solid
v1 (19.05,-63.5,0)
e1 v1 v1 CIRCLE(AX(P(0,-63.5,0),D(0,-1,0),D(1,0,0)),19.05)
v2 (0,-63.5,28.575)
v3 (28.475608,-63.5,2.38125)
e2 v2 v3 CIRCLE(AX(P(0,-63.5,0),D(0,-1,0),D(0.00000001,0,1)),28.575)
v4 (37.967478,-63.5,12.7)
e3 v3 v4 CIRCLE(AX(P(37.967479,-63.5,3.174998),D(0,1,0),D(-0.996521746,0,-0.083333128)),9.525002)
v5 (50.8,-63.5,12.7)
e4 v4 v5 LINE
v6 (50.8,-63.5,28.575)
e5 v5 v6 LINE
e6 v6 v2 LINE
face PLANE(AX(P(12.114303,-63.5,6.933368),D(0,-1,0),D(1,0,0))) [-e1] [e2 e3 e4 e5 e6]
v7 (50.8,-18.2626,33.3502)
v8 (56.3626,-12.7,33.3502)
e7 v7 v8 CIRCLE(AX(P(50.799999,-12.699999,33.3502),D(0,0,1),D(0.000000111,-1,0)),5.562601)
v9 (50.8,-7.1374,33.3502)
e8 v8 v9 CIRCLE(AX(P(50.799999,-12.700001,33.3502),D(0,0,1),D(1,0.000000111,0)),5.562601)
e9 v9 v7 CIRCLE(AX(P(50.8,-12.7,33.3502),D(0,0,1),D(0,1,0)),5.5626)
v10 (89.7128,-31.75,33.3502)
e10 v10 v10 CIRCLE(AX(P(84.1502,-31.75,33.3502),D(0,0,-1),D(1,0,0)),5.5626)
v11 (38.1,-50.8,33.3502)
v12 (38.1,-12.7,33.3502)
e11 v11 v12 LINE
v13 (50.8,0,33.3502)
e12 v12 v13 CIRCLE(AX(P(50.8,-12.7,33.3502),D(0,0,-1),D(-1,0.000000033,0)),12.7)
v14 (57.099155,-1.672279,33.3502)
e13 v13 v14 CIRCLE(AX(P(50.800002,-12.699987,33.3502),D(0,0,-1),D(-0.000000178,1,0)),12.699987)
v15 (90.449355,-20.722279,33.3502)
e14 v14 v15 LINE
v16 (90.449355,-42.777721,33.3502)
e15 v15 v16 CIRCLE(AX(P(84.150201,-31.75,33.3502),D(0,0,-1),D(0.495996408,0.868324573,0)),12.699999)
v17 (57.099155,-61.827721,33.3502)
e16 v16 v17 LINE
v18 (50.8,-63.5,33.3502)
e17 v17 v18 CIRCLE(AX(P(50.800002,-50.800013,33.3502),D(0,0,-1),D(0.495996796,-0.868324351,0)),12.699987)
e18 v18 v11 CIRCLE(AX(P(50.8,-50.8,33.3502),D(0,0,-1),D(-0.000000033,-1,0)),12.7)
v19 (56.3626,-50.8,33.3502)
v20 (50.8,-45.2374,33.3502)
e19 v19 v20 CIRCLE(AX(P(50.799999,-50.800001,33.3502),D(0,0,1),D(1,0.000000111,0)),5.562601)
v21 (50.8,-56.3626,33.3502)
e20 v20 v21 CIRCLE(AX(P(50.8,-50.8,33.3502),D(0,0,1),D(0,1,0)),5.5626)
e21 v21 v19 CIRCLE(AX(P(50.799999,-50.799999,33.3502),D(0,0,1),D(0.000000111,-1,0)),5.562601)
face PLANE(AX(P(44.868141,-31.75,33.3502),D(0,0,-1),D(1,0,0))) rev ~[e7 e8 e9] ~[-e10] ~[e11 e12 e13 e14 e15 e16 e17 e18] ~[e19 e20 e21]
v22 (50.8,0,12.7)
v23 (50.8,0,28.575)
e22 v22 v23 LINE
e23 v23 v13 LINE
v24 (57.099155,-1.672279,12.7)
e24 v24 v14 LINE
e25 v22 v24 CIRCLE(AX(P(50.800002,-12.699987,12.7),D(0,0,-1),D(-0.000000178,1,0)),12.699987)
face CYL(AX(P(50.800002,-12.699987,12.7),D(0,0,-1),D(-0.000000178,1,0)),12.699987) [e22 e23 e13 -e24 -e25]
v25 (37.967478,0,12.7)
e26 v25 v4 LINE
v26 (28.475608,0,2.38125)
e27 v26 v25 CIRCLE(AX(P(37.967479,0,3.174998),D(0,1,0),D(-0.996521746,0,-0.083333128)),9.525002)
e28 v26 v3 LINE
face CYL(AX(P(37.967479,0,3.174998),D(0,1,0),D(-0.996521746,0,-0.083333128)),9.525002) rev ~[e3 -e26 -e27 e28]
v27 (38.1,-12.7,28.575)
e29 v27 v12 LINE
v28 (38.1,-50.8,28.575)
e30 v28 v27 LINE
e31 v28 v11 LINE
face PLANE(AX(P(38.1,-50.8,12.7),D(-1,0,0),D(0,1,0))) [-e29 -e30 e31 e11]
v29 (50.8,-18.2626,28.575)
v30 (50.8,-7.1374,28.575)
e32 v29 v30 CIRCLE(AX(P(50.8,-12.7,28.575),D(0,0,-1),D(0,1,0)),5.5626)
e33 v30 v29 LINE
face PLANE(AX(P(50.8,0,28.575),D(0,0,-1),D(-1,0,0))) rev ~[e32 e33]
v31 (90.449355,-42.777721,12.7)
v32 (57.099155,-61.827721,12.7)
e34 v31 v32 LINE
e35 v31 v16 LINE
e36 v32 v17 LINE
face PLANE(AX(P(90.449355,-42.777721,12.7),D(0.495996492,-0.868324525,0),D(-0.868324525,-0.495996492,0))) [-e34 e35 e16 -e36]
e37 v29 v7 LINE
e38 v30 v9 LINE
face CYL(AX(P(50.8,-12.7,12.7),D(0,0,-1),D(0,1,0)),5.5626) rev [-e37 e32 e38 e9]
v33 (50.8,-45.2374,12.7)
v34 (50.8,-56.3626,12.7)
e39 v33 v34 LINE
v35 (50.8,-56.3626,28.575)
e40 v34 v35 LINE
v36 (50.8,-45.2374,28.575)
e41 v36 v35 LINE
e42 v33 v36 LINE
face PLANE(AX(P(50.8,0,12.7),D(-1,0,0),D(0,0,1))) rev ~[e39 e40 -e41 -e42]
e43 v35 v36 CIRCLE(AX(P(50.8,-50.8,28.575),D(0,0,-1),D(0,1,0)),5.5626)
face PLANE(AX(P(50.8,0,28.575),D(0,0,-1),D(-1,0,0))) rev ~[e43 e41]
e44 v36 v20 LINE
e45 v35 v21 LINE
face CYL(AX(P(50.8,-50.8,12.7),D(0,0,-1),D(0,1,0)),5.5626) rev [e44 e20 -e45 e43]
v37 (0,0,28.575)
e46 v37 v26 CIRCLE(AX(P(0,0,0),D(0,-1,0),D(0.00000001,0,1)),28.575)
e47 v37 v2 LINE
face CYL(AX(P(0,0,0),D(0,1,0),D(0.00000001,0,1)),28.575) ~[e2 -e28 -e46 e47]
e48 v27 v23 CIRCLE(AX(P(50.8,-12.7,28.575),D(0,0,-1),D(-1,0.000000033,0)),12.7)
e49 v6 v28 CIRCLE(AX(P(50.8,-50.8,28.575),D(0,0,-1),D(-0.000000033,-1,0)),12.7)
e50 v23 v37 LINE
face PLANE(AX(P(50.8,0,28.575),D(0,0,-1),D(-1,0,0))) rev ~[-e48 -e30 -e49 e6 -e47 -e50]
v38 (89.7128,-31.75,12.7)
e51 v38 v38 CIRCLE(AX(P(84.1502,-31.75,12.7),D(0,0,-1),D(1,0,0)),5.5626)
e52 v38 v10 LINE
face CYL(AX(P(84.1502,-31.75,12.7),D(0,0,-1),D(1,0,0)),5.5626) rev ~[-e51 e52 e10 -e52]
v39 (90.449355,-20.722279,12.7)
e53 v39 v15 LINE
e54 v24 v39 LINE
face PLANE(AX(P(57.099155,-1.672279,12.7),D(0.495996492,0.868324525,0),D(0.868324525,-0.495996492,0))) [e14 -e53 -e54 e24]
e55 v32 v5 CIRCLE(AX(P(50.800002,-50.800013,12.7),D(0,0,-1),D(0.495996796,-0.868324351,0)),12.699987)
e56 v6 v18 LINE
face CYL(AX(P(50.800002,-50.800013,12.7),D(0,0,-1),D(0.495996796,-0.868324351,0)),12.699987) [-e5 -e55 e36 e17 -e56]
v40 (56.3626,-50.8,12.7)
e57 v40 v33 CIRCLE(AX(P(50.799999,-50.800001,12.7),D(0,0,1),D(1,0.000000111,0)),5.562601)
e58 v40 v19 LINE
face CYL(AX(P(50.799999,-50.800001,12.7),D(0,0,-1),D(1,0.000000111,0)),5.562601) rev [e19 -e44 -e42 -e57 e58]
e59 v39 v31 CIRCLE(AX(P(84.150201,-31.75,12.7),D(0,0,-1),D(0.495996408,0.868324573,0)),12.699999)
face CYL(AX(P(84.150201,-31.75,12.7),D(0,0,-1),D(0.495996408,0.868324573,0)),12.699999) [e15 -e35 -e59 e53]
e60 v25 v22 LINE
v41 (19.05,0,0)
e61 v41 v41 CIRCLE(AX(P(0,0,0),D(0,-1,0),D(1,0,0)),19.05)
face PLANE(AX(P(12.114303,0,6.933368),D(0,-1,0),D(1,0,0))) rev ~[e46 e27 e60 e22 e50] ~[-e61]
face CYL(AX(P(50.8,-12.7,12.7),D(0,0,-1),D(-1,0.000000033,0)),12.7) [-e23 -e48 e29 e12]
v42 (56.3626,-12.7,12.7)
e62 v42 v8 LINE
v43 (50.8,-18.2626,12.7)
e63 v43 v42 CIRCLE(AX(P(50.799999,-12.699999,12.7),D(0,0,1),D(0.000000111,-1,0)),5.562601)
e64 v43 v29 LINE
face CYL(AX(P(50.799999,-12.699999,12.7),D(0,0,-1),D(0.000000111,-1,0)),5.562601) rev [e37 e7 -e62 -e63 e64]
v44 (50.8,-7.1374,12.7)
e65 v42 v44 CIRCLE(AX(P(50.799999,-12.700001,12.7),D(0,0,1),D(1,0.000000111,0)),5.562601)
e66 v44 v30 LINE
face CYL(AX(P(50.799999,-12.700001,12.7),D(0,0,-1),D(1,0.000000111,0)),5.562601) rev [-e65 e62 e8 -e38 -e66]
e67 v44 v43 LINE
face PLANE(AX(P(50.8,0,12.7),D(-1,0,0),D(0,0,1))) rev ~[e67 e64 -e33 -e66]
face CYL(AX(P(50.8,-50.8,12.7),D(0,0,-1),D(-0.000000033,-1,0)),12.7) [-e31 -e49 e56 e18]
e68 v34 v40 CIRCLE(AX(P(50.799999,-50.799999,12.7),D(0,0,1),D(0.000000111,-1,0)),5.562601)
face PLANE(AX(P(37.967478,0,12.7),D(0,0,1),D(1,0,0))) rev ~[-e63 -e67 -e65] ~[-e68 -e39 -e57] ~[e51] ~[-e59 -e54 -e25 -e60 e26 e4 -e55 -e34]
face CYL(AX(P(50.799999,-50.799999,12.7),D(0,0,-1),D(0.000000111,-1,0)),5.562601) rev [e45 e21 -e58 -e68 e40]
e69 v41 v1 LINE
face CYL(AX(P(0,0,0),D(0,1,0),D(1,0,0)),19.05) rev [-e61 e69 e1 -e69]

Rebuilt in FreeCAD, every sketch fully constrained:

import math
import FreeCAD as App
import Part
import Sketcher

V = App.Vector
Q = App.Units.Quantity

doc = App.newDocument("Part")
body = doc.addObject("PartDesign::Body", "Body")

# Sketch on XZ plane
sketch1 = body.newObject("Sketcher::SketchObject", "Sketch")
sketch1.AttachmentSupport = (doc.getObject("XZ_Plane"), [""])
sketch1.MapMode = "FlatFace"
sketch1.addGeometry(Part.LineSegment(V(51, 29, 0), V(0, 29, 0)), False)
sketch1.addGeometry(Part.ArcOfCircle(Part.Circle(V(0, 0, 0), V(0, 0, 1), 29), math.radians(90), math.radians(365)), False)
sketch1.addGeometry(Part.ArcOfCircle(Part.Circle(V(38, 3, 0), V(0, 0, 1), 10), math.radians(90), math.radians(185)), False)
sketch1.addGeometry(Part.LineSegment(V(38, 13, 0), V(51, 13, 0)), False)
sketch1.addGeometry(Part.LineSegment(V(51, 13, 0), V(51, 29, 0)), False)
sketch1.addGeometry(Part.Circle(V(0, 0, 0), V(0, 0, 1), 19), False)
sketch1.addConstraint(Sketcher.Constraint("Tangent", 0, 2, 1, 1))
sketch1.addConstraint(Sketcher.Constraint("Tangent", 1, 2, 2, 2))
sketch1.addConstraint(Sketcher.Constraint("Tangent", 2, 1, 3, 1))
sketch1.addConstraint(Sketcher.Constraint("Coincident", 3, 2, 4, 1))
sketch1.addConstraint(Sketcher.Constraint("Coincident", 4, 2, 0, 1))
sketch1.addConstraint(Sketcher.Constraint("Horizontal", 0))
sketch1.addConstraint(Sketcher.Constraint("Horizontal", 3))
sketch1.addConstraint(Sketcher.Constraint("Vertical", 4))
sketch1.addConstraint(Sketcher.Constraint("Coincident", 1, 3, -1, 1))
sketch1.addConstraint(Sketcher.Constraint("Coincident", 5, 3, -1, 1))
sketch1.addConstraint(Sketcher.Constraint("Diameter", 5, Q("1.5 in")))
sketch1.addConstraint(Sketcher.Constraint("DistanceX", 0, 2, 0, 1, Q("2 in")))
sketch1.addConstraint(Sketcher.Constraint("Radius", 1, Q("1.125 in")))
sketch1.addConstraint(Sketcher.Constraint("Radius", 2, Q("0.3750001 in")))
sketch1.addConstraint(Sketcher.Constraint("DistanceY", 2, 3, 0, 2, Q("1.0000001 in")))
pad1 = body.newObject("PartDesign::Pad", "Pad")
pad1.Profile = sketch1
pad1.Length = Q("2.5 in")

# Sketch on XY plane
sketch2 = body.newObject("Sketcher::SketchObject", "Sketch001")
sketch2.AttachmentSupport = (doc.getObject("XY_Plane"), [""])
sketch2.MapMode = "FlatFace"
sketch2.AttachmentOffset = App.Placement(V(0, 0, 0.5 * 25.4), App.Rotation())
sketch2.addGeometry(Part.ArcOfCircle(Part.Circle(V(51, -51, 0), V(0, 0, 1), 13), math.radians(-180), math.radians(-90)), False)
sketch2.addGeometry(Part.LineSegment(V(38, -51, 0), V(38, -13, 0)), False)
sketch2.addGeometry(Part.ArcOfCircle(Part.Circle(V(51, -13, 0), V(0, 0, 1), 13), math.radians(90), math.radians(180)), False)
sketch2.addGeometry(Part.ArcOfCircle(Part.Circle(V(51, -13, 0), V(0, 0, 1), 13), math.radians(60), math.radians(90)), False)
sketch2.addGeometry(Part.LineSegment(V(57, -2, 0), V(90, -21, 0)), False)
sketch2.addGeometry(Part.ArcOfCircle(Part.Circle(V(84, -32, 0), V(0, 0, 1), 13), math.radians(-60), math.radians(60)), False)
sketch2.addGeometry(Part.LineSegment(V(90, -43, 0), V(57, -62, 0)), False)
sketch2.addGeometry(Part.ArcOfCircle(Part.Circle(V(51, -51, 0), V(0, 0, 1), 13), math.radians(-90), math.radians(-60)), False)
sketch2.addGeometry(Part.ArcOfCircle(Part.Circle(V(51, -13, 0), V(0, 0, 1), 6), math.radians(90), math.radians(270)), False)
sketch2.addGeometry(Part.ArcOfCircle(Part.Circle(V(51, -13, 0), V(0, 0, 1), 6), math.radians(-90), math.radians(0)), False)
sketch2.addGeometry(Part.ArcOfCircle(Part.Circle(V(51, -13, 0), V(0, 0, 1), 6), math.radians(0), math.radians(90)), False)
sketch2.addGeometry(Part.ArcOfCircle(Part.Circle(V(51, -51, 0), V(0, 0, 1), 6), math.radians(90), math.radians(270)), False)
sketch2.addGeometry(Part.ArcOfCircle(Part.Circle(V(51, -51, 0), V(0, 0, 1), 6), math.radians(-90), math.radians(0)), False)
sketch2.addGeometry(Part.ArcOfCircle(Part.Circle(V(51, -51, 0), V(0, 0, 1), 6), math.radians(0), math.radians(90)), False)
sketch2.addGeometry(Part.Circle(V(84, -32, 0), V(0, 0, 1), 6), False)
sketch2.addConstraint(Sketcher.Constraint("Tangent", 0, 1, 1, 1))
sketch2.addConstraint(Sketcher.Constraint("Tangent", 1, 2, 2, 2))
sketch2.addConstraint(Sketcher.Constraint("Tangent", 2, 1, 3, 2))
sketch2.addConstraint(Sketcher.Constraint("Tangent", 3, 1, 4, 1))
sketch2.addConstraint(Sketcher.Constraint("Tangent", 4, 2, 5, 2))
sketch2.addConstraint(Sketcher.Constraint("Tangent", 5, 1, 6, 1))
sketch2.addConstraint(Sketcher.Constraint("Tangent", 6, 2, 7, 2))
sketch2.addConstraint(Sketcher.Constraint("Tangent", 7, 1, 0, 2))
sketch2.addConstraint(Sketcher.Constraint("Tangent", 8, 2, 9, 1))
sketch2.addConstraint(Sketcher.Constraint("Tangent", 9, 2, 10, 1))
sketch2.addConstraint(Sketcher.Constraint("Tangent", 10, 2, 8, 1))
sketch2.addConstraint(Sketcher.Constraint("Tangent", 11, 2, 12, 1))
sketch2.addConstraint(Sketcher.Constraint("Tangent", 12, 2, 13, 1))
sketch2.addConstraint(Sketcher.Constraint("Tangent", 13, 2, 11, 1))
sketch2.addConstraint(Sketcher.Constraint("Vertical", 1))
sketch2.addConstraint(Sketcher.Constraint("Coincident", 8, 3, 2, 3))
sketch2.addConstraint(Sketcher.Constraint("Coincident", 11, 3, 0, 3))
sketch2.addConstraint(Sketcher.Constraint("Coincident", 14, 3, 5, 3))
sketch2.addConstraint(Sketcher.Constraint("Equal", 0, 2))
sketch2.addConstraint(Sketcher.Constraint("Equal", 2, 5))
sketch2.addConstraint(Sketcher.Constraint("Equal", 3, 7))
sketch2.addConstraint(Sketcher.Constraint("Equal", 10, 11))
sketch2.addConstraint(Sketcher.Constraint("Equal", 13, 14))
sketch2.addConstraint(Sketcher.Constraint("PointOnObject", 2, 1, -1))
sketch2.addConstraint(Sketcher.Constraint("Horizontal", 1, 2, 9, 2))
sketch2.addConstraint(Sketcher.Constraint("Horizontal", 0, 1, 12, 2))
sketch2.addConstraint(Sketcher.Constraint("Vertical", 13, 3, 2, 1))
sketch2.addConstraint(Sketcher.Constraint("Vertical", 4, 2, 5, 1))
sketch2.addConstraint(Sketcher.Constraint("Vertical", 2, 1, 7, 1))
sketch2.addConstraint(Sketcher.Constraint("Vertical", 7, 1, 8, 2))
sketch2.addConstraint(Sketcher.Constraint("Vertical", 8, 2, 10, 2))
sketch2.addConstraint(Sketcher.Constraint("Vertical", 10, 2, 11, 2))
sketch2.addConstraint(Sketcher.Constraint("Vertical", 11, 2, 13, 2))
sketch2.addConstraint(Sketcher.Constraint("Radius", 0, Q("0.5 in")))
sketch2.addConstraint(Sketcher.Constraint("Diameter", 14, Q("0.438 in")))
sketch2.addConstraint(Sketcher.Constraint("DistanceY", 1, 1, 1, 2, Q("1.5 in")))
sketch2.addConstraint(Sketcher.Constraint("DistanceX", -1, 1, 0, 3, Q("2 in")))
sketch2.addConstraint(Sketcher.Constraint("DistanceY", 4, 2, 3, 1, Q("0.75 in")))
sketch2.addConstraint(Sketcher.Constraint("DistanceX", -1, 1, 5, 3, Q("3.313 in")))
pad2 = body.newObject("PartDesign::Pad", "Pad001")
pad2.Profile = sketch2
pad2.Length = Q("0.813 in")

doc.recompute()
